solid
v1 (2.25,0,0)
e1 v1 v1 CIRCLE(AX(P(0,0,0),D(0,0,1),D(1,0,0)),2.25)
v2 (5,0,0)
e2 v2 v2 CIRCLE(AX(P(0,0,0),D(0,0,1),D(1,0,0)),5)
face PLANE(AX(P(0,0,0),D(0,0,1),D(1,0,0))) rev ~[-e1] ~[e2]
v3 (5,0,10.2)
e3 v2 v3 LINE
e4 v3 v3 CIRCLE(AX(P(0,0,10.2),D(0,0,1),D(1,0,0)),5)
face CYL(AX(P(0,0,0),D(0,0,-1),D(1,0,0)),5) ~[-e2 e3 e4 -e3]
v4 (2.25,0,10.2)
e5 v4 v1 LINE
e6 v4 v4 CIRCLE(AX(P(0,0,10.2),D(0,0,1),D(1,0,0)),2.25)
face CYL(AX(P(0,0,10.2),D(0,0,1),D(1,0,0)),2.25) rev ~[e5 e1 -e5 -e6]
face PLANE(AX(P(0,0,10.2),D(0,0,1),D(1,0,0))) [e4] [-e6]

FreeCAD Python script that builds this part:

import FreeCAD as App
import Part
import Sketcher

V = App.Vector
Q = App.Units.Quantity

doc = App.newDocument("Part")
body = doc.addObject("PartDesign::Body", "Body")

# Sketch on XY plane
sketch1 = doc.addObject("Sketcher::SketchObject", "Sketch")
body.addObject(sketch1)
sketch1.AttachmentSupport = (doc.XY_Plane, [""])
sketch1.MapMode = "FlatFace"
sketch1.addGeometry(Part.Circle(V(0, 0, 0), V(0, 0, 1), 5), False)
sketch1.addConstraint([
    Sketcher.Constraint("Coincident", 0, 3, -1, 1),
    Sketcher.Constraint("Diameter", 0, Q("10 mm")),
])
pad1 = doc.addObject("PartDesign::Pad", "Pad")
body.addObject(pad1)
pad1.Profile = sketch1
pad1.Length = 10.2

# Sketch on XY plane
sketch2 = doc.addObject("Sketcher::SketchObject", "Sketch001")
body.addObject(sketch2)
sketch2.AttachmentSupport = (doc.XY_Plane, [""])
sketch2.MapMode = "FlatFace"
sketch2.AttachmentOffset = App.Placement(V(0, 0, 10.2), App.Rotation())
sketch2.addGeometry(Part.Circle(V(0, 0, 0), V(0, 0, 1), 2.25), False)
sketch2.addConstraint([
    Sketcher.Constraint("Coincident", 0, 3, -1, 1),
    Sketcher.Constraint("Diameter", 0, Q("4.5 mm")),
])
pocket1 = doc.addObject("PartDesign::Pocket", "Pocket")
body.addObject(pocket1)
pocket1.Profile = sketch2
pocket1.Type = "ThroughAll"

doc.recompute()
